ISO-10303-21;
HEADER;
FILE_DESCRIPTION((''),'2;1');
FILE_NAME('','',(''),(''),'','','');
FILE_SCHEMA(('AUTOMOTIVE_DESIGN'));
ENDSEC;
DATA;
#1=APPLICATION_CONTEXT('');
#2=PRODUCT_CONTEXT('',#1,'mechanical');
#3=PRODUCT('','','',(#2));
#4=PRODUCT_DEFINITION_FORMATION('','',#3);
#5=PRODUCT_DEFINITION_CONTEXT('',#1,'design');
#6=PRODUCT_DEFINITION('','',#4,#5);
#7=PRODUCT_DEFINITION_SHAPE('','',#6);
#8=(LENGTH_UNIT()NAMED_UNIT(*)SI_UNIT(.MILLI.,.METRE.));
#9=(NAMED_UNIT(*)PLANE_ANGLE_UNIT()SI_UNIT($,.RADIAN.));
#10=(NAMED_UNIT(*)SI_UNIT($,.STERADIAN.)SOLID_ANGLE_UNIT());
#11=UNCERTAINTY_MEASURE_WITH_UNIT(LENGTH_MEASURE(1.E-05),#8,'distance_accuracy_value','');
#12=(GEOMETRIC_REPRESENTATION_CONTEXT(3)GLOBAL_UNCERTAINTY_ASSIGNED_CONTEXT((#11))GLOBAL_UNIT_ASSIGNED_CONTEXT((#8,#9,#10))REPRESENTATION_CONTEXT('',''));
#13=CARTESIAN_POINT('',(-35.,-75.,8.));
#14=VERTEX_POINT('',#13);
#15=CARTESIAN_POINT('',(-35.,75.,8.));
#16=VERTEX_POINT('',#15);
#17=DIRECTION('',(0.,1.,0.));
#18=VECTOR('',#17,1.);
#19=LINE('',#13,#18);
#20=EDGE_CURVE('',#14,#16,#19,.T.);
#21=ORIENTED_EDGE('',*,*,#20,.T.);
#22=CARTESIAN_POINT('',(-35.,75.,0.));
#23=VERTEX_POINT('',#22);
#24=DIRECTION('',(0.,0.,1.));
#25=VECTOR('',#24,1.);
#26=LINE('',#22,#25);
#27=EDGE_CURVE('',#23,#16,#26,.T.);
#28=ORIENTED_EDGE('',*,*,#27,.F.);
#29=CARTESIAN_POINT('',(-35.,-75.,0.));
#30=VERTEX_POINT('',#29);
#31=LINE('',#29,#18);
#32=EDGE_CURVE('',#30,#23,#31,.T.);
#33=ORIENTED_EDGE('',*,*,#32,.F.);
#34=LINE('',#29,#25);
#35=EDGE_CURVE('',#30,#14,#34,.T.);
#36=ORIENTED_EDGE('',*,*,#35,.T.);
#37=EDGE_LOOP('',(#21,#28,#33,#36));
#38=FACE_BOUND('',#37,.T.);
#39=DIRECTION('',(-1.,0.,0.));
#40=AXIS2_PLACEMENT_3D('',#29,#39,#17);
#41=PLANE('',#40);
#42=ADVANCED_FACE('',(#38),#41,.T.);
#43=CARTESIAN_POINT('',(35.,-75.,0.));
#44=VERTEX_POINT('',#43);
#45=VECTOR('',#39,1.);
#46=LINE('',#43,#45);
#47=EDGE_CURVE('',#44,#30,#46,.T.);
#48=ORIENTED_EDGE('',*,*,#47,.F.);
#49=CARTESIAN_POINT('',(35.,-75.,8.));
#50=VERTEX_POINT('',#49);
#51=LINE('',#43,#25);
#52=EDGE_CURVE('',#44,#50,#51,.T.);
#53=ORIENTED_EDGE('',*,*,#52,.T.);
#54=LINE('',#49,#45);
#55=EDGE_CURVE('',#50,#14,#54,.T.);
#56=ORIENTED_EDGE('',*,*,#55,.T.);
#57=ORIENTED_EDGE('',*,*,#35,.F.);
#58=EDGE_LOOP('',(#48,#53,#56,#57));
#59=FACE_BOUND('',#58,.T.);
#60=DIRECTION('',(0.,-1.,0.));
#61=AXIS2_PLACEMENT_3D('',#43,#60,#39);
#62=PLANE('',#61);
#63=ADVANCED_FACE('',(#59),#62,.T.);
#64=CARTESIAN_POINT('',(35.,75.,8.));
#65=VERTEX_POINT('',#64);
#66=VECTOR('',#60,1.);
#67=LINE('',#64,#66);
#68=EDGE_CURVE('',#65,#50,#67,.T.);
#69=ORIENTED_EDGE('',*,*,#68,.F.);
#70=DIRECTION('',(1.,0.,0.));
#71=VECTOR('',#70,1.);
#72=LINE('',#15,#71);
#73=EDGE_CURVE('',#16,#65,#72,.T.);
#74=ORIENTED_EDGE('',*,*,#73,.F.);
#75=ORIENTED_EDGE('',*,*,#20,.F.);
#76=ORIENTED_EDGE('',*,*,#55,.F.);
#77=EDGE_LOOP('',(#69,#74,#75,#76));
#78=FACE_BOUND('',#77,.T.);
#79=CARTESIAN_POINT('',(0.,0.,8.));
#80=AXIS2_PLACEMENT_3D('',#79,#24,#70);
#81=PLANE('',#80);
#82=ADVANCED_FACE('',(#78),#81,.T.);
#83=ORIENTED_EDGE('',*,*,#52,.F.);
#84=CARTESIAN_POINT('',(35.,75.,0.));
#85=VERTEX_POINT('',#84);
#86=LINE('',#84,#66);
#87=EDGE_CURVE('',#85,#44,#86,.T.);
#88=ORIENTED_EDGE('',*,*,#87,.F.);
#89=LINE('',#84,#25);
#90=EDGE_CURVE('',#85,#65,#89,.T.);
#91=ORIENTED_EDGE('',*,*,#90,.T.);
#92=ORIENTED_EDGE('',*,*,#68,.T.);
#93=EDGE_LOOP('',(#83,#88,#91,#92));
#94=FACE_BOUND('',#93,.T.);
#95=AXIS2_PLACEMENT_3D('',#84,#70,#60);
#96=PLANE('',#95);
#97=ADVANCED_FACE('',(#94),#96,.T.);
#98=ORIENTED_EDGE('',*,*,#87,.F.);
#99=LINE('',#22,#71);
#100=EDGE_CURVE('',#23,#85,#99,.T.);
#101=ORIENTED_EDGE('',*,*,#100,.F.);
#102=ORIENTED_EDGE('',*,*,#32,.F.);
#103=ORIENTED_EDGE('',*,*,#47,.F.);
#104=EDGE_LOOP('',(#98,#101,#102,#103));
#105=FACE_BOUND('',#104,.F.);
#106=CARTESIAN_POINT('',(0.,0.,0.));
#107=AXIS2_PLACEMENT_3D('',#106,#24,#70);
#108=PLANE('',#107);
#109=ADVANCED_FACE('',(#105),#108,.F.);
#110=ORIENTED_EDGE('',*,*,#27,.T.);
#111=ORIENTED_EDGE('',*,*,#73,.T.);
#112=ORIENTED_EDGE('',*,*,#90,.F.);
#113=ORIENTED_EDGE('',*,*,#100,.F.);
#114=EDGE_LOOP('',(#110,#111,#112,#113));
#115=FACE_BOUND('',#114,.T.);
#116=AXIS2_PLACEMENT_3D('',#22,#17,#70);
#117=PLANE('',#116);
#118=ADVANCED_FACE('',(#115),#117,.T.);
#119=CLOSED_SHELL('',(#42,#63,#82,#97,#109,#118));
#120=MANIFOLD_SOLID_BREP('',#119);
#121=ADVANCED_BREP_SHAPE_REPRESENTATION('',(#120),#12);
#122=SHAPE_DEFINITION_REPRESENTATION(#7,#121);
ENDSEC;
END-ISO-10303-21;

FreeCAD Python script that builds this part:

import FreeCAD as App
import Part
import Sketcher
from FreeCAD import Vector

doc = App.newDocument("Part")
body = doc.addObject("PartDesign::Body", "Body")

# Sketch on XY plane
sketch1 = body.newObject("Sketcher::SketchObject", "Sketch")
sketch1.AttachmentSupport = (doc.getObject("XY_Plane"), [""])
sketch1.MapMode = "FlatFace"
sketch1.addGeometry([
    Part.LineSegment(Vector(35, 75, 0), Vector(-35, 75, 0)),
    Part.LineSegment(Vector(-35, 75, 0), Vector(-35, -75, 0)),
    Part.LineSegment(Vector(-35, -75, 0), Vector(35, -75, 0)),
    Part.LineSegment(Vector(35, -75, 0), Vector(35, 75, 0)),
], False)
sketch1.addConstraint([
    Sketcher.Constraint("Coincident", 0, 2, 1, 1),
    Sketcher.Constraint("Coincident", 1, 2, 2, 1),
    Sketcher.Constraint("Coincident", 2, 2, 3, 1),
    Sketcher.Constraint("Coincident", 3, 2, 0, 1),
    Sketcher.Constraint("Horizontal", 0),
    Sketcher.Constraint("Vertical", 1),
    Sketcher.Constraint("Horizontal", 2),
    Sketcher.Constraint("Vertical", 3),
    Sketcher.Constraint("Symmetric", 0, 2, 2, 2, -1, 1),
    Sketcher.Constraint("DistanceX", 0, 2, 0, 1, 70.0),
    Sketcher.Constraint("DistanceY", 1, 2, 1, 1, 150.0),
])
pad1 = body.newObject("PartDesign::Pad", "Pad")
pad1.Profile = sketch1
pad1.Length = 8

doc.recompute()
